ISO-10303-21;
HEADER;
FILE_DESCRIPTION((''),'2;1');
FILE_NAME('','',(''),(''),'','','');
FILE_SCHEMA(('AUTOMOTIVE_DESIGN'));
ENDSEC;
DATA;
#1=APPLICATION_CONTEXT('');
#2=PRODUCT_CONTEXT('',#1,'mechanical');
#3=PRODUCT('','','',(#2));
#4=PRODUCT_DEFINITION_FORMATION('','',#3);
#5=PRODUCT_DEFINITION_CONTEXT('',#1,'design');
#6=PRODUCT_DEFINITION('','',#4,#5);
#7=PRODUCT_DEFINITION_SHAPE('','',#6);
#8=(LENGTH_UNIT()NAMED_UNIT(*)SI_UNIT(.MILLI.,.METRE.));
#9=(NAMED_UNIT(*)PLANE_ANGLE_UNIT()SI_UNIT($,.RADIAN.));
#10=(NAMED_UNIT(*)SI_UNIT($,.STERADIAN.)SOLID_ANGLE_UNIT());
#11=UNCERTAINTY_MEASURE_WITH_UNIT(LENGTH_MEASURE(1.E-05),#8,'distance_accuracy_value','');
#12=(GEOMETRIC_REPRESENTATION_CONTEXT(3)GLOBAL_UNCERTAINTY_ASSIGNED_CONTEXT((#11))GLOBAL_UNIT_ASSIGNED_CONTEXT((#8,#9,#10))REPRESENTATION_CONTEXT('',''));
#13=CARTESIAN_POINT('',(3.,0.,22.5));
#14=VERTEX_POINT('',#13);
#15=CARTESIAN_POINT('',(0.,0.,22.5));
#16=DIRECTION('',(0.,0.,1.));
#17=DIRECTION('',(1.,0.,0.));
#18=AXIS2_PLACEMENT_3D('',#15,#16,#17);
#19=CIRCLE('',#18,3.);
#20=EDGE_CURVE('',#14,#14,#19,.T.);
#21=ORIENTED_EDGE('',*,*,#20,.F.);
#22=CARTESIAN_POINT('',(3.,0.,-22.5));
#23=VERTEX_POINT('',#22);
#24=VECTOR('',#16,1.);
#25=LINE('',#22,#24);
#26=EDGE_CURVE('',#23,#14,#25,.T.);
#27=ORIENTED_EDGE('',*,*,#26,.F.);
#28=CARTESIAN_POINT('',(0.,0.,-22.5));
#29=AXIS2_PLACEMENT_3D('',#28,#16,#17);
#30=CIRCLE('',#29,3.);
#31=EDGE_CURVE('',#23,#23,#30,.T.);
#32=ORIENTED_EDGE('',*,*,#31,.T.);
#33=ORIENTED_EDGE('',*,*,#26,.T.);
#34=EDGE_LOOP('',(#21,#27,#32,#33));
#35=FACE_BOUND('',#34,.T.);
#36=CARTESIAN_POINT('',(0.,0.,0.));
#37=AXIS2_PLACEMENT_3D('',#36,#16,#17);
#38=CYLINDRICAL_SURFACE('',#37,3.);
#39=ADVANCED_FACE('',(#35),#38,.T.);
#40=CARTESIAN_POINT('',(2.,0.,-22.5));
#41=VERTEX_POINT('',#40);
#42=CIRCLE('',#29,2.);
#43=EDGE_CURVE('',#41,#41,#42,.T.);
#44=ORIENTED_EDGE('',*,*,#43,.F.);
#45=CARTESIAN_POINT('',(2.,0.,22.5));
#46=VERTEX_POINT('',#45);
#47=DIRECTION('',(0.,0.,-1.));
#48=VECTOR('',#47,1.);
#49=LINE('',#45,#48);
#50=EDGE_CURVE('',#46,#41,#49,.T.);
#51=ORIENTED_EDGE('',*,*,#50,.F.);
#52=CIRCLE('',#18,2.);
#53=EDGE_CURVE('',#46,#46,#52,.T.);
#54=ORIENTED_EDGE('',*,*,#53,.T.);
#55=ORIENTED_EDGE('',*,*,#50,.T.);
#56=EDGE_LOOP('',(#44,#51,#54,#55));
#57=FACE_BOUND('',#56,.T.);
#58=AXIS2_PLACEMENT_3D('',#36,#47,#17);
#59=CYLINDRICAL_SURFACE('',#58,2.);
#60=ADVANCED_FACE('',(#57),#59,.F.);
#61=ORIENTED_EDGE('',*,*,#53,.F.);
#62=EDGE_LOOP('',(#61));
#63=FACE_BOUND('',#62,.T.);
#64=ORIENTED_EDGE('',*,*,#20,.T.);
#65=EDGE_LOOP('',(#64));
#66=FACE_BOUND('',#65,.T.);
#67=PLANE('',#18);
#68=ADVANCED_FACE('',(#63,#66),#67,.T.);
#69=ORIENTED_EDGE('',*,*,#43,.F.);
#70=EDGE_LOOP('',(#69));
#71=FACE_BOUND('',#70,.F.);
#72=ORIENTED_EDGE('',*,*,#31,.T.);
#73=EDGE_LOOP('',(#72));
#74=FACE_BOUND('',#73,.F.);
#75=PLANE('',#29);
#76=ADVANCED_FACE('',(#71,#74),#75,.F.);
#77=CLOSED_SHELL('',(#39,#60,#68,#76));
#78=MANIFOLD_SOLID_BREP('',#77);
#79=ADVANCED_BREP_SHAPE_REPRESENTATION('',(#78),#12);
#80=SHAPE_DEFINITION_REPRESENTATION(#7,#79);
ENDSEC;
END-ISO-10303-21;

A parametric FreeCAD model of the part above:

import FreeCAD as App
import Part
import Sketcher
from FreeCAD import Vector

doc = App.newDocument("Part")
body = doc.addObject("PartDesign::Body", "Body")

# Sketch on XY plane
sketch1 = body.newObject("Sketcher::SketchObject", "Sketch")
sketch1.AttachmentSupport = (doc.getObject("XY_Plane"), [""])
sketch1.MapMode = "FlatFace"
sketch1.addGeometry(Part.Circle(Vector(0, 0, 0), Vector(0, 0, 1), 3), False)
sketch1.addGeometry(Part.Circle(Vector(0, 0, 0), Vector(0, 0, 1), 2), False)
sketch1.addConstraint(Sketcher.Constraint("Coincident", 0, 3, -1, 1))
sketch1.addConstraint(Sketcher.Constraint("Coincident", 1, 3, -1, 1))
sketch1.addConstraint(Sketcher.Constraint("Diameter", 0, 6.0))
sketch1.addConstraint(Sketcher.Constraint("Diameter", 1, 4.0))
pad1 = body.newObject("PartDesign::Pad", "Pad")
pad1.Profile = sketch1
pad1.Length = 45
pad1.Midplane = True

doc.recompute()
